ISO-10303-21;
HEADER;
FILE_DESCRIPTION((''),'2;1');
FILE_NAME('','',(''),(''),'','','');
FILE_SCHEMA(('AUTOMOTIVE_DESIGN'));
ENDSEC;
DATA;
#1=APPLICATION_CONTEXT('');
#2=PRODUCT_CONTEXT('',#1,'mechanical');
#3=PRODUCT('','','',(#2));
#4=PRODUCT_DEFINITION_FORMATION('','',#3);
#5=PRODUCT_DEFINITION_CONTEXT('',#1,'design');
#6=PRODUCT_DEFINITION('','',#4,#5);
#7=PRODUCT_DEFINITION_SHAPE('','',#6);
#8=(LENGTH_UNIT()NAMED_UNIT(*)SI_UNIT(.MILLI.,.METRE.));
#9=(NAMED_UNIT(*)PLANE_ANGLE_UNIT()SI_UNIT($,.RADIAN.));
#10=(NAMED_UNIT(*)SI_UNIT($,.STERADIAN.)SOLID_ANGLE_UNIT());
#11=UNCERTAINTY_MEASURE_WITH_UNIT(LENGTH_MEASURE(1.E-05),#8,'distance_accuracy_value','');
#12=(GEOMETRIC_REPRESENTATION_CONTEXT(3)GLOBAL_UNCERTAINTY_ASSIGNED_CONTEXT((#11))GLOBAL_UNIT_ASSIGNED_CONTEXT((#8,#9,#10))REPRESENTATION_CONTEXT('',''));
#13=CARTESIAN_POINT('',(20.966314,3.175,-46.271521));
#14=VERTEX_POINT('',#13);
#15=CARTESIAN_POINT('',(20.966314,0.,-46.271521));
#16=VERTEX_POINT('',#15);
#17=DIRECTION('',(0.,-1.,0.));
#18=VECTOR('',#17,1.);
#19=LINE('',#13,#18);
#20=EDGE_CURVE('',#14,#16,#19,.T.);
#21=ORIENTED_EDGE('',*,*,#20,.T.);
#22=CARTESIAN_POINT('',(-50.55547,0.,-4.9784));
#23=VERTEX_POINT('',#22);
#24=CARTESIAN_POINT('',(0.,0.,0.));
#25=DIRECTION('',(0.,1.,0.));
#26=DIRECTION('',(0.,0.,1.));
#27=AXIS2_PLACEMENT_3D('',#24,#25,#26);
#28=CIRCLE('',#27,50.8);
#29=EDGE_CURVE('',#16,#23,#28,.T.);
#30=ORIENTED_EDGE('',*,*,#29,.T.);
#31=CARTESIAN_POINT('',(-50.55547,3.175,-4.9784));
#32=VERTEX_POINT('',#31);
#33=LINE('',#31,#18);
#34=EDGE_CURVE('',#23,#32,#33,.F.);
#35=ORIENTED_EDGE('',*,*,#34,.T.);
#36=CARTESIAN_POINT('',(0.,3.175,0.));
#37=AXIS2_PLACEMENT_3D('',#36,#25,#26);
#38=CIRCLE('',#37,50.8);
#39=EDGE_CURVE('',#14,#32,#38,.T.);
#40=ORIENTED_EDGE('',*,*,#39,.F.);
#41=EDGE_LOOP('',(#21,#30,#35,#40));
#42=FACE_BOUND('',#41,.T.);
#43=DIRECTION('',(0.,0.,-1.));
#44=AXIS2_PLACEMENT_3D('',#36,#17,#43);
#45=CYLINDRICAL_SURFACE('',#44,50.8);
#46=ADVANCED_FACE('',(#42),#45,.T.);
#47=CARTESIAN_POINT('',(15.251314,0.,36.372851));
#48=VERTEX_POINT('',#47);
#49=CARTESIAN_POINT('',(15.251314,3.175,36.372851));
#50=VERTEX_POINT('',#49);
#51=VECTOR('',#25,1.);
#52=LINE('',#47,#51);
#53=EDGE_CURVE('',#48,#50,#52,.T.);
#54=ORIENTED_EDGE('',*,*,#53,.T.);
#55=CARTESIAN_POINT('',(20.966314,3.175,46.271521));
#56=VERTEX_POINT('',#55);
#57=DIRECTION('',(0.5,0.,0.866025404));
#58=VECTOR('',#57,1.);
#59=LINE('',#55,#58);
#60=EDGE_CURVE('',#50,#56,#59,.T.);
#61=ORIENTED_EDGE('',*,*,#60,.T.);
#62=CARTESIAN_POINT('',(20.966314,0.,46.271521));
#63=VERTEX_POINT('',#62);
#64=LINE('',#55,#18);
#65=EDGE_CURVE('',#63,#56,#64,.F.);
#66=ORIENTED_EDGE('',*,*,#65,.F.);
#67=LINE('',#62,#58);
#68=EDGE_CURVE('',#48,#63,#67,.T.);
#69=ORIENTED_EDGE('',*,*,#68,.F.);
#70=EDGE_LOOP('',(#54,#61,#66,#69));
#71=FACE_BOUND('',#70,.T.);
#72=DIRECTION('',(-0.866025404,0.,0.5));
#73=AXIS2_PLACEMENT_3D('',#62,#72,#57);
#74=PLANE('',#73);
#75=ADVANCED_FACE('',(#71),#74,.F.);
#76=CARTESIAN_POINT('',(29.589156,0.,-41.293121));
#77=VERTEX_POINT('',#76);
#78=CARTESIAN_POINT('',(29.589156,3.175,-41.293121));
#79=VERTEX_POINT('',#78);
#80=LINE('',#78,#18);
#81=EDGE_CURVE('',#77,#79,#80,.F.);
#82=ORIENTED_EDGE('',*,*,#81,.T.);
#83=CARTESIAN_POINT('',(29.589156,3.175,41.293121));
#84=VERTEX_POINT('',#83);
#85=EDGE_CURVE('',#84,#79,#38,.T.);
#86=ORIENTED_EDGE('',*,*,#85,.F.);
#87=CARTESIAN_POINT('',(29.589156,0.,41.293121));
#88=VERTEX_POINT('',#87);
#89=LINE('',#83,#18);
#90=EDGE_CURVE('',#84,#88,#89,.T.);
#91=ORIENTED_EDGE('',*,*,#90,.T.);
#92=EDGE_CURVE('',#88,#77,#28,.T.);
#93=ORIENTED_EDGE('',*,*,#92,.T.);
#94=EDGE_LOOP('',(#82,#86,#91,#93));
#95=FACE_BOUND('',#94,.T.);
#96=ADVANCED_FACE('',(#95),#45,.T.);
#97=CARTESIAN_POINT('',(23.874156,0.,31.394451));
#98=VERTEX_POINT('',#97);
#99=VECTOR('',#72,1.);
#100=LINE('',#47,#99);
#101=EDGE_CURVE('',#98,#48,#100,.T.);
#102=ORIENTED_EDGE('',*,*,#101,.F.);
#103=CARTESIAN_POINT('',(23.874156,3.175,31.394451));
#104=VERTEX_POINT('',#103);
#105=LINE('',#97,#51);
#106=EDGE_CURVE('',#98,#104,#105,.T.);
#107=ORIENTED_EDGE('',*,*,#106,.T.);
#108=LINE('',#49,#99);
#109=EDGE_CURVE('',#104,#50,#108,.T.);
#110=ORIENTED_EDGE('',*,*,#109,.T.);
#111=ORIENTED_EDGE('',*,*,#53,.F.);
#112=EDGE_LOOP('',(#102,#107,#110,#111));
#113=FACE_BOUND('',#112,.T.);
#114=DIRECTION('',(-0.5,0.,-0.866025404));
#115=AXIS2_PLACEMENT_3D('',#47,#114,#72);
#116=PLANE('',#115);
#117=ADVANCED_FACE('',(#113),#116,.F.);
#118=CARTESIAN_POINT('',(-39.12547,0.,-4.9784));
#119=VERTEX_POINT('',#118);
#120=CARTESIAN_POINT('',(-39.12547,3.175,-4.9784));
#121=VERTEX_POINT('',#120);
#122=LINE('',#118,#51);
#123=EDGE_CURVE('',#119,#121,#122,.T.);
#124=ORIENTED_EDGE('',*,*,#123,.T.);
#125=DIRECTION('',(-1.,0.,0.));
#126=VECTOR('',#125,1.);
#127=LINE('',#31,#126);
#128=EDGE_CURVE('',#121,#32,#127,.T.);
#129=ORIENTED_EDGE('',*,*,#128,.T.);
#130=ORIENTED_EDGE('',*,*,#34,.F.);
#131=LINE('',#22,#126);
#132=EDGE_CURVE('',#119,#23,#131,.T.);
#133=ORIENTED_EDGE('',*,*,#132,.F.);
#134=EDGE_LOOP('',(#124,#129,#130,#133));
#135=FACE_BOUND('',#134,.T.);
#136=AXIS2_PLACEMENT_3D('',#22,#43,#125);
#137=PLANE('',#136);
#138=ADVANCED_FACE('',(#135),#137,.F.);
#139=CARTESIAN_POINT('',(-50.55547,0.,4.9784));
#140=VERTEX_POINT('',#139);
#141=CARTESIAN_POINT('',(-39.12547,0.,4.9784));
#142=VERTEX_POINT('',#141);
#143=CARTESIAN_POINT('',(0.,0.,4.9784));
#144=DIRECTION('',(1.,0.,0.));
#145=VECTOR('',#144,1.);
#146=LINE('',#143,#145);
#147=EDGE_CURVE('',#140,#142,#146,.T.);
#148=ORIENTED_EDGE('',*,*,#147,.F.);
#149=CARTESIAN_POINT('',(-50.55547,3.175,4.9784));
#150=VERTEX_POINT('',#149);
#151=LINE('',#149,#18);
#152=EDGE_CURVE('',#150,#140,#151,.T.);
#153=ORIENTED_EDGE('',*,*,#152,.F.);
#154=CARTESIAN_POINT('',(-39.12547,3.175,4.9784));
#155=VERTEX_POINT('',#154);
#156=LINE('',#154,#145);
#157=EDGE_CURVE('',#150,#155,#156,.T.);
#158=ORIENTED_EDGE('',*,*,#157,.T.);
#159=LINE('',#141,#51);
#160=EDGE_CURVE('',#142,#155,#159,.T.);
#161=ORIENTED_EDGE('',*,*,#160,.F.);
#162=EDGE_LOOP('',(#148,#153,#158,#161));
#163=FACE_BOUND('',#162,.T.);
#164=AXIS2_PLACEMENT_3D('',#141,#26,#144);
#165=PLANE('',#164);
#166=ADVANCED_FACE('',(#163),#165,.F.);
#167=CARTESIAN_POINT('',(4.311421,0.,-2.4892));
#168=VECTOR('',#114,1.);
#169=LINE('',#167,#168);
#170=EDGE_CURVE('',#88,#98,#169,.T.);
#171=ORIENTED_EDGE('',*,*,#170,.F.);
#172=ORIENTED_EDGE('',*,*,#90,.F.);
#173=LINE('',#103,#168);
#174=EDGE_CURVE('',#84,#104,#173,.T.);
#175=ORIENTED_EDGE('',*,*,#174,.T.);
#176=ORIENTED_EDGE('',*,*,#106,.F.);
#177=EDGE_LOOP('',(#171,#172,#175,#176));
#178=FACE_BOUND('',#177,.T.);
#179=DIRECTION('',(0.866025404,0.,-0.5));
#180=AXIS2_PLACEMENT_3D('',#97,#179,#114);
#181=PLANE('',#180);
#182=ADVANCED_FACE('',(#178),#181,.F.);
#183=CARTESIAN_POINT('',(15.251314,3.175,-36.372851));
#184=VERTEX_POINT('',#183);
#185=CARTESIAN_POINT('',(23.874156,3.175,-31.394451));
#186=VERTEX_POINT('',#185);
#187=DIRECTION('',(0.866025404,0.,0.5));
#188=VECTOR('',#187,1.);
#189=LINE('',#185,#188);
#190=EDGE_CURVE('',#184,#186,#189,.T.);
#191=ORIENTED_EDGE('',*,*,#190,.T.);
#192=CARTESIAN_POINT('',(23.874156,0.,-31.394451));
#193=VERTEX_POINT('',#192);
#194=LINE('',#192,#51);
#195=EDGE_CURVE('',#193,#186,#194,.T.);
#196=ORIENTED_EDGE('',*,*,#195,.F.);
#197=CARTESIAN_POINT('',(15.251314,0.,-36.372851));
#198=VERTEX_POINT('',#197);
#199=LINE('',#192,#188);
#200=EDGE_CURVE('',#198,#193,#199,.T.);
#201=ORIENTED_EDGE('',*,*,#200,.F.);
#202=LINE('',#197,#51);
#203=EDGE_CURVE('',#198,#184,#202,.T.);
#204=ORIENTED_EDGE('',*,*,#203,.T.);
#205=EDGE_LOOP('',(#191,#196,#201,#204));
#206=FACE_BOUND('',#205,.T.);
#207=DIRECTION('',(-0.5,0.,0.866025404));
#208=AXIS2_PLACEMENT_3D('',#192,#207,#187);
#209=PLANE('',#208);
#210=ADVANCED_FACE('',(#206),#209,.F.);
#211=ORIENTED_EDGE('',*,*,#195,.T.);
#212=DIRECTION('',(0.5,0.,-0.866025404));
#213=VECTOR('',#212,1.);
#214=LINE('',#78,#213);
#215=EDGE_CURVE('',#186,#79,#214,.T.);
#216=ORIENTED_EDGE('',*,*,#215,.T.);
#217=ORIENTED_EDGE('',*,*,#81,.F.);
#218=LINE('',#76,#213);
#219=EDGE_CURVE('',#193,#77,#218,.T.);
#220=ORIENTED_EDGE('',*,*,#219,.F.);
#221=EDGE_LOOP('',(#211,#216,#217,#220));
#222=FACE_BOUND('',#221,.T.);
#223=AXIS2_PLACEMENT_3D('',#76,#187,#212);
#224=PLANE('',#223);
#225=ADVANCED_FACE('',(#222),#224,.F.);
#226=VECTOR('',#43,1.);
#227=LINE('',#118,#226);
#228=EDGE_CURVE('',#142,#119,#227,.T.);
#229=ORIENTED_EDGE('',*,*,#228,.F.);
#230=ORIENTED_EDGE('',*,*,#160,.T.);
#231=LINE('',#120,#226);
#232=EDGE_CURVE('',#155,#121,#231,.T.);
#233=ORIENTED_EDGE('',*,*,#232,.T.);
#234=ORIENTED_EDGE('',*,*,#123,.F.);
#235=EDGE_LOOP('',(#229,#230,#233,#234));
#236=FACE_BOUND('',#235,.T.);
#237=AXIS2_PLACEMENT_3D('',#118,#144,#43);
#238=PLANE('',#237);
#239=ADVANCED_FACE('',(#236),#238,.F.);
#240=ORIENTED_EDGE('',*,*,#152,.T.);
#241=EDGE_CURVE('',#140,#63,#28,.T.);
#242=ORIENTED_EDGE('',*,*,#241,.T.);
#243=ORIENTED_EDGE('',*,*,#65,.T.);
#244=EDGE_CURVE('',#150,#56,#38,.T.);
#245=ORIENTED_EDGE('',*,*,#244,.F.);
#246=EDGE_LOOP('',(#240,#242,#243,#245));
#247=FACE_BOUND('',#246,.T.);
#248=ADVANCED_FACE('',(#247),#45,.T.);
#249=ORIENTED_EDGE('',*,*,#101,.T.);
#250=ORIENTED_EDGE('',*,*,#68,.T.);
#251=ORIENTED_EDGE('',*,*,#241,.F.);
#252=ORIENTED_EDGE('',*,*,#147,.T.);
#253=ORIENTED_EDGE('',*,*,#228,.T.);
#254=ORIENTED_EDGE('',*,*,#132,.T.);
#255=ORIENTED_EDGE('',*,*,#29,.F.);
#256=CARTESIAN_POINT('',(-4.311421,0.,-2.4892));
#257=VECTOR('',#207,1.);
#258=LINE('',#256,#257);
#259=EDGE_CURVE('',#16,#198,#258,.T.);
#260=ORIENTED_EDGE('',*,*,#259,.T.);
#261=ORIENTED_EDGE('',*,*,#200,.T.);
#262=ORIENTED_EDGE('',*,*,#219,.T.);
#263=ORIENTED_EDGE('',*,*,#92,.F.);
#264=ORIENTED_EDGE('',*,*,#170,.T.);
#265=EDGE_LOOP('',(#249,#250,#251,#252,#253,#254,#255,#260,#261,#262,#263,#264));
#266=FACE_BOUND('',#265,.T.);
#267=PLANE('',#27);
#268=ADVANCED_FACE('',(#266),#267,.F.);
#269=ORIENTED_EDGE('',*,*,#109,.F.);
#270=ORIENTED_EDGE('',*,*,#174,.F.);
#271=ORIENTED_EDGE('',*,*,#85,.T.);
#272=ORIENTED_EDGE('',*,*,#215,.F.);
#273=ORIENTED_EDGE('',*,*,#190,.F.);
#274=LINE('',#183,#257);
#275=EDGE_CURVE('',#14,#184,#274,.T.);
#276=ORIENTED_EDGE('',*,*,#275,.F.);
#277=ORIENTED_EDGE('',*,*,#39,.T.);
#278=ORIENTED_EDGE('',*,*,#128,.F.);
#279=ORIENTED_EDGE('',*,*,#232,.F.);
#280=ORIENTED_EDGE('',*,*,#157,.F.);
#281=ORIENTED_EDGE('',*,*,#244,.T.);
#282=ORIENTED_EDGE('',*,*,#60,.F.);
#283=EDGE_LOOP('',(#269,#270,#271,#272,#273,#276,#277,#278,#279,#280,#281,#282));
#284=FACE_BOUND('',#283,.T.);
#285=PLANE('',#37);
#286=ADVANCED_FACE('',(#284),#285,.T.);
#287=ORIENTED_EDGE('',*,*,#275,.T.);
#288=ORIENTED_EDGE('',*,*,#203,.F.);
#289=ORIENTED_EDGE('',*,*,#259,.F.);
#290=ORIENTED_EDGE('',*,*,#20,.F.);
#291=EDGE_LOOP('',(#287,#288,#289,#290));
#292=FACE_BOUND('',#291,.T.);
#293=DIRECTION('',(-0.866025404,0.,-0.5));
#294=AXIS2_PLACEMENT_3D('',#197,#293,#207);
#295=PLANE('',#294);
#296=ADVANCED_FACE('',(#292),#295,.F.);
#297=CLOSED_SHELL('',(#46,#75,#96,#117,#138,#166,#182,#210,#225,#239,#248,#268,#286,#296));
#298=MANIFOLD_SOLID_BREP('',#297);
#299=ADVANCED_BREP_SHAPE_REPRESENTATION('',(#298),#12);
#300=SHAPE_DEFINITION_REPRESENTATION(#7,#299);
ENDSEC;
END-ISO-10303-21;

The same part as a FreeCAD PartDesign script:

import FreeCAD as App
import Part
import Sketcher
from FreeCAD import Vector
Q = App.Units.Quantity

doc = App.newDocument("Part")
body = doc.addObject("PartDesign::Body", "Body")

sketch1 = body.newObject("Sketcher::SketchObject", "Sketch")
sketch1.AttachmentSupport = (doc.getObject("XZ_Plane"), [""])
sketch1.MapMode = "FlatFace"
sketch1.addGeometry(Part.Circle(Vector(0, 0, 0), Vector(0, 0, 1), 50.8), False)
sketch1.addConstraint([
    Sketcher.Constraint("Coincident", 0, 3, -1, 1),
    Sketcher.Constraint("Diameter", 0, Q("4 in")),
])
pad1 = body.newObject("PartDesign::Pad", "Pad")
pad1.Profile = sketch1
pad1.Length = Q("0.125 in")
pad1.Reversed = True

sketch2 = body.newObject("Sketcher::SketchObject", "Sketch001")
sketch2.AttachmentSupport = (doc.getObject("XZ_Plane"), [""])
sketch2.MapMode = "FlatFace"
sketch2.AttachmentOffset = App.Placement(Vector(0, 0, -0.125 * 25.4), App.Rotation())
sketch2.addGeometry([
    Part.LineSegment(Vector(-39.12547, -4.9784, 0), Vector(-52.750339, -4.9784, 0)),
    Part.LineSegment(Vector(-52.750339, -4.9784, 0), Vector(-52.750339, 4.9784, 0)),
    Part.LineSegment(Vector(-52.750339, 4.9784, 0), Vector(-39.12547, 4.9784, 0)),
    Part.LineSegment(Vector(-39.12547, 4.9784, 0), Vector(-39.12547, -4.9784, 0)),
], False)
sketch2.addConstraint([
    Sketcher.Constraint("Coincident", 0, 2, 1, 1),
    Sketcher.Constraint("Coincident", 1, 2, 2, 1),
    Sketcher.Constraint("Coincident", 2, 2, 3, 1),
    Sketcher.Constraint("Coincident", 3, 2, 0, 1),
    Sketcher.Constraint("Horizontal", 0),
    Sketcher.Constraint("Vertical", 1),
    Sketcher.Constraint("Horizontal", 2),
    Sketcher.Constraint("Vertical", 3),
    Sketcher.Constraint("DistanceY", 1, 1, 1, 2, Q("0.392 in")),
    Sketcher.Constraint("DistanceY", 0, 2, -1, 1, Q("0.196 in")),
    Sketcher.Constraint("DistanceX", 0, 2, 0, 1, Q("13.624869 mm")),
    Sketcher.Constraint("DistanceX", 0, 2, -1, 1, Q("52.750339 mm")),
])
pocket1 = body.newObject("PartDesign::Pocket", "Pocket")
pocket1.Profile = sketch2
pocket1.Type = "ThroughAll"
pocket1.Reversed = True
doc.recompute()

polarpattern = body.newObject("PartDesign::PolarPattern", "PolarPattern")
polarpattern.Originals = [pocket1]
polarpattern.Axis = (doc.getObject("Y_Axis"), [""])
polarpattern.Angle = 120
polarpattern.Occurrences = 2
polarpattern.Reversed = True
body.Tip = polarpattern
doc.recompute()

polarpattern2 = body.newObject("PartDesign::PolarPattern", "PolarPattern001")
polarpattern2.Originals = [pocket1]
polarpattern2.Axis = (doc.getObject("Y_Axis"), [""])
polarpattern2.Angle = 120
polarpattern2.Occurrences = 2
body.Tip = polarpattern2

doc.recompute()
